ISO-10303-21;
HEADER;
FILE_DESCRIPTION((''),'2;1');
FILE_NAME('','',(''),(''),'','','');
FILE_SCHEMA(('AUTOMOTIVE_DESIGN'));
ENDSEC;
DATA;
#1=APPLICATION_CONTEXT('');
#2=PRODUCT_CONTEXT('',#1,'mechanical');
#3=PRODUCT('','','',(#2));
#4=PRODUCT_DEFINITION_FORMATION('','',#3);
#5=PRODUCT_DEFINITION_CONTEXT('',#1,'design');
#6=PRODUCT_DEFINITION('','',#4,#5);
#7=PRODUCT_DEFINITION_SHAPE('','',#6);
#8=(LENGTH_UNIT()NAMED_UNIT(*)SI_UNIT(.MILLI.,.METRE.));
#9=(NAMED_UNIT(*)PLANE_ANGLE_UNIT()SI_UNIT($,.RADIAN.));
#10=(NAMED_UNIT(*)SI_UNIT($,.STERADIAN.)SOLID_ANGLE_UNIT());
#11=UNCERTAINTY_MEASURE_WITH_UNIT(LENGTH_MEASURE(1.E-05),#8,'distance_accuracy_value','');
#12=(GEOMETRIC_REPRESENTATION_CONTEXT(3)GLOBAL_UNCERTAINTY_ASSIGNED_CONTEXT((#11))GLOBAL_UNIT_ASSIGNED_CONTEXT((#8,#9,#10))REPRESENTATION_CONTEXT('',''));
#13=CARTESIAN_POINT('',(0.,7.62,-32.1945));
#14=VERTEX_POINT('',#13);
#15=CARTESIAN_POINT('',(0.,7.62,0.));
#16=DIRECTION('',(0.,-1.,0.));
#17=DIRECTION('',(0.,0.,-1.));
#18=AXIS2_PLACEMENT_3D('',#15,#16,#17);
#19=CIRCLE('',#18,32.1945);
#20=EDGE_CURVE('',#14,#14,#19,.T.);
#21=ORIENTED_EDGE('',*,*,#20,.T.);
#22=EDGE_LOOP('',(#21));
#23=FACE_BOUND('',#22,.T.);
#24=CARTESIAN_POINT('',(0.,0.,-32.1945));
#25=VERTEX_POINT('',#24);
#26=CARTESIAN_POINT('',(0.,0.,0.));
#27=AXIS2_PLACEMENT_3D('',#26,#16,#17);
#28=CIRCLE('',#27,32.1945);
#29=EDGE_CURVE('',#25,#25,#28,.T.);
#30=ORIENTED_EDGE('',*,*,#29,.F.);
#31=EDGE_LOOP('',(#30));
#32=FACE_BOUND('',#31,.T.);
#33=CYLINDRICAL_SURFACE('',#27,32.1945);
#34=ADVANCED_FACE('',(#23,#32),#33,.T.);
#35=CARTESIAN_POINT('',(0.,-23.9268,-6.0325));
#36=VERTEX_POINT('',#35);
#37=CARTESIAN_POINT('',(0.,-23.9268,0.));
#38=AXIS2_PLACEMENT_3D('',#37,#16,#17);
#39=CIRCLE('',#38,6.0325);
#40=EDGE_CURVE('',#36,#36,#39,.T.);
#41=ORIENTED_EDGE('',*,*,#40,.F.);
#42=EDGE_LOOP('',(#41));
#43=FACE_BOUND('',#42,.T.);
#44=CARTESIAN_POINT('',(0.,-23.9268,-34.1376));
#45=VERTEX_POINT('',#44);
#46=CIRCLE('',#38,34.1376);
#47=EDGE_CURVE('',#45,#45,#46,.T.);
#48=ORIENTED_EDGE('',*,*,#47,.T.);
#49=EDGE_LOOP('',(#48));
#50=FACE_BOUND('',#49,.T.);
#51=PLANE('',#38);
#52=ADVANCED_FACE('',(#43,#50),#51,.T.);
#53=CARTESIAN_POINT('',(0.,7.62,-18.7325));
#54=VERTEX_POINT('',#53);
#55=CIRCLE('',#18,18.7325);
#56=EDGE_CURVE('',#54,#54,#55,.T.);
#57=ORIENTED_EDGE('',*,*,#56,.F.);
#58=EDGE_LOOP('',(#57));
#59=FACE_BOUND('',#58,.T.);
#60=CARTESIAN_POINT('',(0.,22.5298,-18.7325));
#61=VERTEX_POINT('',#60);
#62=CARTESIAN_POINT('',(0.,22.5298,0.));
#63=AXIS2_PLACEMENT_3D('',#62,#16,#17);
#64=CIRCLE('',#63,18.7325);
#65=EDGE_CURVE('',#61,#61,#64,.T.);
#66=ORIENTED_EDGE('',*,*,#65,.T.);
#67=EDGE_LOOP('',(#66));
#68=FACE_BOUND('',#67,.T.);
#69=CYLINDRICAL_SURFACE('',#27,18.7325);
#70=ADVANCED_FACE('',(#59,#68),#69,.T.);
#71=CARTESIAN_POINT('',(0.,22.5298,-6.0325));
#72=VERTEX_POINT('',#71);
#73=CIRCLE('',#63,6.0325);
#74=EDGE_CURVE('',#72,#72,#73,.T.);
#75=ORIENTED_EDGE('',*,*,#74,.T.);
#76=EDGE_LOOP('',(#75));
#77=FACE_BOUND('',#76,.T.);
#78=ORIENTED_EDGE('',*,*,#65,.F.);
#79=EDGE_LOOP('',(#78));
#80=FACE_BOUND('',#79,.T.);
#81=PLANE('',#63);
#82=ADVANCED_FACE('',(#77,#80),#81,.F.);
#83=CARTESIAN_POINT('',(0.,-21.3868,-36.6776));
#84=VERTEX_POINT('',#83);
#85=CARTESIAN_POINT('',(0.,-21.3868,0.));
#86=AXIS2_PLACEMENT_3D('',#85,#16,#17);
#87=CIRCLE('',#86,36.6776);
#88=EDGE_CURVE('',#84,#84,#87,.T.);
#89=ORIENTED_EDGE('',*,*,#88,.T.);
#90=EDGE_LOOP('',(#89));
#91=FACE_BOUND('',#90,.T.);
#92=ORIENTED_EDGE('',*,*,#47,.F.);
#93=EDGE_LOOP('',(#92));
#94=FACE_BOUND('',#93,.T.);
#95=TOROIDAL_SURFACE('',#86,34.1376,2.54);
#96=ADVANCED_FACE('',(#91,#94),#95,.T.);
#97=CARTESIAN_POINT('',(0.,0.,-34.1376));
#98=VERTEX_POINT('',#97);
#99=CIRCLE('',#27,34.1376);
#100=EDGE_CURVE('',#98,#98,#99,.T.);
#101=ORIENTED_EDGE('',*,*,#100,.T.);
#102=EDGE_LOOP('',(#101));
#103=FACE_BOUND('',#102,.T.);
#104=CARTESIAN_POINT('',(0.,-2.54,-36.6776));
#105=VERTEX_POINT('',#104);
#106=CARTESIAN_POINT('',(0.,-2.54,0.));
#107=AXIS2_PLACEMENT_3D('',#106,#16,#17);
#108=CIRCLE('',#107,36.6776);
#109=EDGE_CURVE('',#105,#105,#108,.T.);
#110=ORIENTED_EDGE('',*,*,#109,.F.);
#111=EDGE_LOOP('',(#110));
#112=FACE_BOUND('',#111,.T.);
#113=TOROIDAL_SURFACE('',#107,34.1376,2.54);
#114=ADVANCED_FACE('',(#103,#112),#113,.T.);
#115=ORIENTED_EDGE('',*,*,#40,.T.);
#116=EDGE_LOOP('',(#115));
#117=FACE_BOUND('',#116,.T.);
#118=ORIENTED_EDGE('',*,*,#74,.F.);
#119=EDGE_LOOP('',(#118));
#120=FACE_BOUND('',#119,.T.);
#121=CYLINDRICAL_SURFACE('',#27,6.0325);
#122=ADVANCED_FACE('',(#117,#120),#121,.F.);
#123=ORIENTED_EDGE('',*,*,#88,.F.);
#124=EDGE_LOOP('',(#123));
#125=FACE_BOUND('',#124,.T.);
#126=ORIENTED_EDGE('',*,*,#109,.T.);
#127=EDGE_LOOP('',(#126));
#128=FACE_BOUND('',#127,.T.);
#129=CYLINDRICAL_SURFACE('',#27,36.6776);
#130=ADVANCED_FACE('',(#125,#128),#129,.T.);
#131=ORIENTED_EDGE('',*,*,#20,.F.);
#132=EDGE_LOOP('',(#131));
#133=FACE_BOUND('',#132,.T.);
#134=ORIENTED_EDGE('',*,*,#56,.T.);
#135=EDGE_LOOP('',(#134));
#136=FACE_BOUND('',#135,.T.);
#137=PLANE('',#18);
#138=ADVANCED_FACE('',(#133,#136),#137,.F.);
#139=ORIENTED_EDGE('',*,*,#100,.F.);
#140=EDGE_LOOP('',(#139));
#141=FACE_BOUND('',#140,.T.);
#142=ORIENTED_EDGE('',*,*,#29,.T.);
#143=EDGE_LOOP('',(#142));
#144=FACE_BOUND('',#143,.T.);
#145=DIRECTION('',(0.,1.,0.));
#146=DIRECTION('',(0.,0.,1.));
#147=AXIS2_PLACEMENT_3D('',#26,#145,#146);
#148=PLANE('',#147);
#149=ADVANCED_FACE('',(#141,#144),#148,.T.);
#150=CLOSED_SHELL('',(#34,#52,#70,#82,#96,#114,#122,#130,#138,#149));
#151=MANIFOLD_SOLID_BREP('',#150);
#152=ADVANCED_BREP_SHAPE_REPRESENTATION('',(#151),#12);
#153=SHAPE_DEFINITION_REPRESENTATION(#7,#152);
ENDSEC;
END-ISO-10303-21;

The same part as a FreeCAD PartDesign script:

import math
import FreeCAD as App
import Part
import Sketcher
Q = App.Units.Quantity

doc = App.newDocument("Part")
body = doc.addObject("PartDesign::Body", "Body")

sketch1 = body.newObject("Sketcher::SketchObject", "Sketch")
sketch1.AttachmentSupport = (doc.getObject("XY_Plane"), [""])
sketch1.MapMode = "FlatFace"
sketch1.addGeometry([
    Part.LineSegment(App.Vector(18.7, 22.5, 0), App.Vector(6, 22.5, 0)),
    Part.LineSegment(App.Vector(6, 22.5, 0), App.Vector(6, -23.9, 0)),
    Part.LineSegment(App.Vector(6, -23.9, 0), App.Vector(34.1, -23.9, 0)),
    Part.ArcOfCircle(Part.Circle(App.Vector(34.1, -21.4, 0), App.Vector(0, 0, 1), 2.5), math.radians(-90), math.radians(0)),
    Part.LineSegment(App.Vector(36.7, -21.4, 0), App.Vector(36.7, -2.5, 0)),
    Part.ArcOfCircle(Part.Circle(App.Vector(34.1, -2.5, 0), App.Vector(0, 0, 1), 2.5), math.radians(0), math.radians(90)),
    Part.LineSegment(App.Vector(34.1, 0, 0), App.Vector(32.2, 0, 0)),
    Part.LineSegment(App.Vector(32.2, 0, 0), App.Vector(32.2, 7.6, 0)),
    Part.LineSegment(App.Vector(32.2, 7.6, 0), App.Vector(18.7, 7.6, 0)),
    Part.LineSegment(App.Vector(18.7, 7.6, 0), App.Vector(18.7, 22.5, 0)),
], False)
sketch1.addConstraint([
    Sketcher.Constraint("Coincident", 0, 2, 1, 1),
    Sketcher.Constraint("Coincident", 1, 2, 2, 1),
    Sketcher.Constraint("Tangent", 2, 2, 3, 1),
    Sketcher.Constraint("Tangent", 3, 2, 4, 1),
    Sketcher.Constraint("Tangent", 4, 2, 5, 1),
    Sketcher.Constraint("Tangent", 5, 2, 6, 1),
    Sketcher.Constraint("Coincident", 6, 2, 7, 1),
    Sketcher.Constraint("Coincident", 7, 2, 8, 1),
    Sketcher.Constraint("Coincident", 8, 2, 9, 1),
    Sketcher.Constraint("Coincident", 9, 2, 0, 1),
    Sketcher.Constraint("Horizontal", 0),
    Sketcher.Constraint("Vertical", 1),
    Sketcher.Constraint("Horizontal", 2),
    Sketcher.Constraint("Vertical", 4),
    Sketcher.Constraint("Horizontal", 6),
    Sketcher.Constraint("Vertical", 7),
    Sketcher.Constraint("Horizontal", 8),
    Sketcher.Constraint("Vertical", 9),
    Sketcher.Constraint("Equal", 3, 5),
    Sketcher.Constraint("PointOnObject", 5, 2, -1),
    Sketcher.Constraint("Radius", 3, Q("0.1 in")),
    Sketcher.Constraint("DistanceX", 0, 2, 0, 1, Q("0.5 in")),
    Sketcher.Constraint("DistanceY", 7, 1, 7, 2, Q("0.3 in")),
    Sketcher.Constraint("DistanceX", 8, 2, 8, 1, Q("0.53 in")),
    Sketcher.Constraint("DistanceY", 1, 2, 1, 1, Q("1.829 in")),
    Sketcher.Constraint("DistanceY", 4, 1, 4, 2, Q("0.742 in")),
    Sketcher.Constraint("DistanceX", 2, 1, 2, 2, Q("1.1065 in")),
    Sketcher.Constraint("DistanceX", -1, 1, 3, 3, Q("1.344 in")),
])
revolution = body.newObject("PartDesign::Revolution", "Revolution")
revolution.Profile = sketch1
revolution.ReferenceAxis = (sketch1, ["V_Axis"])
revolution.Angle = 360

doc.recompute()
